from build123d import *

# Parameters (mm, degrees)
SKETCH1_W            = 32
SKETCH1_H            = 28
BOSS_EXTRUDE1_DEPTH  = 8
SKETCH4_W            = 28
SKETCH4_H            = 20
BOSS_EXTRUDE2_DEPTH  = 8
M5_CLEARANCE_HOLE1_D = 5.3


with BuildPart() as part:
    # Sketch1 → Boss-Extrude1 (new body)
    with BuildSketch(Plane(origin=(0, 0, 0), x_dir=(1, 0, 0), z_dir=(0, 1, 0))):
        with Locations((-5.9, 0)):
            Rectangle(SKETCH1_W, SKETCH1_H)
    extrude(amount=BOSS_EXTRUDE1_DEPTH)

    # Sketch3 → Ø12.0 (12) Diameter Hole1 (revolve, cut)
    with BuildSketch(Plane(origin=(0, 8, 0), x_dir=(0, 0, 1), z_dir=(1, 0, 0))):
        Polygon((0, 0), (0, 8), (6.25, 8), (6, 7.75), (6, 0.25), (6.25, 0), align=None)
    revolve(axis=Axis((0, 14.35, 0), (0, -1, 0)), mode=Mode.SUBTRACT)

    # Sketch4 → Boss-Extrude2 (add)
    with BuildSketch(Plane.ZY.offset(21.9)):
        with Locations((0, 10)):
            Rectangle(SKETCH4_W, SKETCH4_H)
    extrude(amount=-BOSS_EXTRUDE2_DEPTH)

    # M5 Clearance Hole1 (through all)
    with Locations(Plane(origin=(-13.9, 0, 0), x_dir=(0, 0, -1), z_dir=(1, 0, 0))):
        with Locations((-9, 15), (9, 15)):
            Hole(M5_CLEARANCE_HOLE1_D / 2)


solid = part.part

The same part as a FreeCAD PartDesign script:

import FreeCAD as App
import Part
import Sketcher

doc = App.newDocument("Part")
body = doc.addObject("PartDesign::Body", "Body")

# Sketch on XZ plane
sketch1 = body.newObject("Sketcher::SketchObject", "Sketch")
sketch1.AttachmentSupport = (doc.getObject("XZ_Plane"), [""])
sketch1.MapMode = "FlatFace"
sketch1.addGeometry(Part.LineSegment(App.Vector(-21.9, -14, 0), App.Vector(-21.9, 14, 0)), False)
sketch1.addGeometry(Part.LineSegment(App.Vector(-21.9, 14, 0), App.Vector(10.1, 14, 0)), False)
sketch1.addGeometry(Part.LineSegment(App.Vector(10.1, 14, 0), App.Vector(10.1, -14, 0)), False)
sketch1.addGeometry(Part.LineSegment(App.Vector(10.1, -14, 0), App.Vector(-21.9, -14, 0)), False)
sketch1.addConstraint(Sketcher.Constraint("Coincident", 0, 2, 1, 1))
sketch1.addConstraint(Sketcher.Constraint("Coincident", 1, 2, 2, 1))
sketch1.addConstraint(Sketcher.Constraint("Coincident", 2, 2, 3, 1))
sketch1.addConstraint(Sketcher.Constraint("Coincident", 3, 2, 0, 1))
sketch1.addConstraint(Sketcher.Constraint("Vertical", 0))
sketch1.addConstraint(Sketcher.Constraint("Horizontal", 1))
sketch1.addConstraint(Sketcher.Constraint("Vertical", 2))
sketch1.addConstraint(Sketcher.Constraint("Horizontal", 3))
sketch1.addConstraint(Sketcher.Constraint("DistanceX", 1, 1, 1, 2, 32.0))
sketch1.addConstraint(Sketcher.Constraint("DistanceY", 0, 1, 0, 2, 28.0))
sketch1.addConstraint(Sketcher.Constraint("DistanceY", -1, 1, 0, 2, 14.0))
sketch1.addConstraint(Sketcher.Constraint("DistanceX", 0, 2, -1, 1, 21.9))
pad1 = body.newObject("PartDesign::Pad", "Pad")
pad1.Profile = sketch1
pad1.Length = 8
pad1.Reversed = True

# Sketch on YZ plane
sketch2 = body.newObject("Sketcher::SketchObject", "Sketch001")
sketch2.AttachmentSupport = (doc.getObject("YZ_Plane"), [""])
sketch2.MapMode = "FlatFace"
sketch2.addGeometry(Part.LineSegment(App.Vector(0, 0, 0), App.Vector(8, 0, 0)), False)
sketch2.addGeometry(Part.LineSegment(App.Vector(8, 0, 0), App.Vector(8, 6.25, 0)), False)
sketch2.addGeometry(Part.LineSegment(App.Vector(8, 6.25, 0), App.Vector(7.75, 6, 0)), False)
sketch2.addGeometry(Part.LineSegment(App.Vector(7.75, 6, 0), App.Vector(0.25, 6, 0)), False)
sketch2.addGeometry(Part.LineSegment(App.Vector(0.25, 6, 0), App.Vector(0, 6.25, 0)), False)
sketch2.addGeometry(Part.LineSegment(App.Vector(0, 6.25, 0), App.Vector(0, 0, 0)), False)
sketch2.addConstraint(Sketcher.Constraint("Coincident", 0, 2, 1, 1))
sketch2.addConstraint(Sketcher.Constraint("Coincident", 1, 2, 2, 1))
sketch2.addConstraint(Sketcher.Constraint("Coincident", 2, 2, 3, 1))
sketch2.addConstraint(Sketcher.Constraint("Coincident", 3, 2, 4, 1))
sketch2.addConstraint(Sketcher.Constraint("Coincident", 4, 2, 5, 1))
sketch2.addConstraint(Sketcher.Constraint("Coincident", 5, 2, 0, 1))
sketch2.addConstraint(Sketcher.Constraint("Horizontal", 0))
sketch2.addConstraint(Sketcher.Constraint("Vertical", 1))
sketch2.addConstraint(Sketcher.Constraint("Horizontal", 3))
sketch2.addConstraint(Sketcher.Constraint("Vertical", 5))
sketch2.addConstraint(Sketcher.Constraint("Coincident", 5, 2, -1, 1))
sketch2.addConstraint(Sketcher.Constraint("Perpendicular", 2, 4))
sketch2.addConstraint(Sketcher.Constraint("Horizontal", 1, 2, 4, 2))
sketch2.addConstraint(Sketcher.Constraint("Equal", 2, 4))
sketch2.addConstraint(Sketcher.Constraint("DistanceX", 0, 1, 0, 2, 8.0))
sketch2.addConstraint(Sketcher.Constraint("DistanceX", 3, 2, 3, 1, 7.5))
sketch2.addConstraint(Sketcher.Constraint("DistanceY", -1, 1, 2, 2, 6.0))
groove = body.newObject("PartDesign::Groove", "Groove")
groove.Profile = sketch2
groove.ReferenceAxis = (sketch2, ["H_Axis"])
groove.Angle = 360

# Sketch on YZ plane
sketch3 = body.newObject("Sketcher::SketchObject", "Sketch002")
sketch3.AttachmentSupport = (doc.getObject("YZ_Plane"), [""])
sketch3.MapMode = "FlatFace"
sketch3.AttachmentOffset = App.Placement(App.Vector(0, 0, -21.9), App.Rotation())
sketch3.addGeometry(Part.LineSegment(App.Vector(20, -14, 0), App.Vector(0, -14, 0)), False)
sketch3.addGeometry(Part.LineSegment(App.Vector(0, -14, 0), App.Vector(0, 14, 0)), False)
sketch3.addGeometry(Part.LineSegment(App.Vector(0, 14, 0), App.Vector(20, 14, 0)), False)
sketch3.addGeometry(Part.LineSegment(App.Vector(20, 14, 0), App.Vector(20, -14, 0)), False)
sketch3.addConstraint(Sketcher.Constraint("Coincident", 0, 2, 1, 1))
sketch3.addConstraint(Sketcher.Constraint("Coincident", 1, 2, 2, 1))
sketch3.addConstraint(Sketcher.Constraint("Coincident", 2, 2, 3, 1))
sketch3.addConstraint(Sketcher.Constraint("Coincident", 3, 2, 0, 1))
sketch3.addConstraint(Sketcher.Constraint("Horizontal", 0))
sketch3.addConstraint(Sketcher.Constraint("Vertical", 1))
sketch3.addConstraint(Sketcher.Constraint("Horizontal", 2))
sketch3.addConstraint(Sketcher.Constraint("Vertical", 3))
sketch3.addConstraint(Sketcher.Constraint("Symmetric", 0, 2, 1, 2, -1, 1))
sketch3.addConstraint(Sketcher.Constraint("DistanceX", 0, 2, 0, 1, 20.0))
sketch3.addConstraint(Sketcher.Constraint("DistanceY", 1, 1, 1, 2, 28.0))
pad2 = body.newObject("PartDesign::Pad", "Pad001")
pad2.Profile = sketch3
pad2.Length = 8

# Sketch on YZ plane
sketch4 = body.newObject("Sketcher::SketchObject", "Sketch003")
sketch4.AttachmentSupport = (doc.getObject("YZ_Plane"), [""])
sketch4.MapMode = "FlatFace"
sketch4.AttachmentOffset = App.Placement(App.Vector(0, 0, -13.9), App.Rotation())
sketch4.addGeometry(Part.Circle(App.Vector(15, 9, 0), App.Vector(0, 0, 1), 2.65), False)
sketch4.addGeometry(Part.Circle(App.Vector(15, -9, 0), App.Vector(0, 0, 1), 2.65), False)
sketch4.addConstraint(Sketcher.Constraint("Equal", 0, 1))
sketch4.addConstraint(Sketcher.Constraint("Symmetric", 0, 3, 1, 3, -1))
sketch4.addConstraint(Sketcher.Constraint("Diameter", 0, 5.3))
sketch4.addConstraint(Sketcher.Constraint("DistanceX", -1, 1, 0, 3, 15.0))
sketch4.addConstraint(Sketcher.Constraint("DistanceY", -1, 1, 0, 3, 9.0))
doc.recompute()
hole = body.newObject("PartDesign::Hole", "Hole")
hole.Profile = sketch4
hole.ThreadType = "None"
hole.Diameter = 5.3
hole.DepthType = "ThroughAll"

doc.recompute()
